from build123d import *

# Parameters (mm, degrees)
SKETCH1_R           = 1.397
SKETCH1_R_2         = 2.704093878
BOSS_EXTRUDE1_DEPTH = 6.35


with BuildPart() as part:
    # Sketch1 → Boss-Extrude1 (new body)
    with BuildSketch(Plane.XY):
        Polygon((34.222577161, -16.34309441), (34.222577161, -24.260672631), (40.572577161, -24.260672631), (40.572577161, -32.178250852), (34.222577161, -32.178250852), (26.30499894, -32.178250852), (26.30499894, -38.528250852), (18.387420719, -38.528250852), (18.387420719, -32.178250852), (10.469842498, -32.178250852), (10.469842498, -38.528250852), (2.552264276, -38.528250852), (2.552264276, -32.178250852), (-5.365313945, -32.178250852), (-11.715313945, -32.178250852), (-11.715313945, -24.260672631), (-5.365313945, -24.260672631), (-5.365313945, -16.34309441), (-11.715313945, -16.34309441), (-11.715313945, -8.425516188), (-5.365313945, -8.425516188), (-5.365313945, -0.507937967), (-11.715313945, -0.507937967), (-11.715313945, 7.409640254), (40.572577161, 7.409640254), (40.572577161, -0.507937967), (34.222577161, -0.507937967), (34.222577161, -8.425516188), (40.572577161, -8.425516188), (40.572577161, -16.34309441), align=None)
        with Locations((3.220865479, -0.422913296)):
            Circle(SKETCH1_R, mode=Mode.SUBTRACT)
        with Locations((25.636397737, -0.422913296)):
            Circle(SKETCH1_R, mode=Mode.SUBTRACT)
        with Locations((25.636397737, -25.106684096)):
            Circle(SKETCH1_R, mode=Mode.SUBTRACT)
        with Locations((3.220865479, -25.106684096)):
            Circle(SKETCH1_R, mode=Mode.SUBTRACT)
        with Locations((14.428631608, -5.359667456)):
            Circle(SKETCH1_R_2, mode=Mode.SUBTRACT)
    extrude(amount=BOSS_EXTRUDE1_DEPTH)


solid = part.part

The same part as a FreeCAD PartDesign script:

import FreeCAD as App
import Part
import Sketcher

V = App.Vector
Q = App.Units.Quantity


def add_polygon(sketch, points):
    """Adds a closed chain of lines whose ends are joined by coincident constraints."""
    first, n = sketch.GeometryCount, len(points)
    for a, b in zip(points, points[1:] + points[:1]):
        sketch.addGeometry(Part.LineSegment(App.Vector(*a, 0), App.Vector(*b, 0)), False)
    for i in range(n):
        sketch.addConstraint(Sketcher.Constraint("Coincident", first + i, 2, first + (i + 1) % n, 1))

doc = App.newDocument("Part")
body = doc.addObject("PartDesign::Body", "Body")

# Sketch on XY plane
sketch1 = doc.addObject("Sketcher::SketchObject", "Sketch")
body.addObject(sketch1)
sketch1.AttachmentSupport = (doc.XY_Plane, [""])
sketch1.MapMode = "FlatFace"
add_polygon(sketch1, [(34.2, -24.3), (34.2, -16.3), (40.6, -16.3), (40.6, -8.4), (34.2, -8.4), (34.2, -0.5), (40.6, -0.5), (40.6, 7.4), (-11.7, 7.4), (-11.7, -0.5), (-5.4, -0.5), (-5.4, -8.4), (-11.7, -8.4), (-11.7, -16.3), (-5.4, -16.3), (-5.4, -24.3), (-11.7, -24.3), (-11.7, -32.2), (2.6, -32.2), (2.6, -38.5), (10.5, -38.5), (10.5, -32.2), (18.4, -32.2), (18.4, -38.5), (26.3, -38.5), (26.3, -32.2), (40.6, -32.2), (40.6, -24.3)])  # lines 0-27
sketch1.addGeometry(Part.Circle(V(25.6, -25.1, 0), V(0, 0, 1), 1.4), False)  # 28
sketch1.addGeometry(Part.Circle(V(3.2, -25.1, 0), V(0, 0, 1), 1.4), False)  # 29
sketch1.addGeometry(Part.Circle(V(25.6, -0.4, 0), V(0, 0, 1), 1.4), False)  # 30
sketch1.addGeometry(Part.Circle(V(14.4, -5.4, 0), V(0, 0, 1), 2.7), False)  # 31
sketch1.addGeometry(Part.Circle(V(3.2, -0.4, 0), V(0, 0, 1), 1.4), False)  # 32
sketch1.addConstraint(Sketcher.Constraint("Vertical", 0))
sketch1.addConstraint(Sketcher.Constraint("Horizontal", 1))
sketch1.addConstraint(Sketcher.Constraint("Vertical", 2))
sketch1.addConstraint(Sketcher.Constraint("Horizontal", 3))
sketch1.addConstraint(Sketcher.Constraint("Vertical", 4))
sketch1.addConstraint(Sketcher.Constraint("Horizontal", 5))
sketch1.addConstraint(Sketcher.Constraint("Vertical", 6))
sketch1.addConstraint(Sketcher.Constraint("Horizontal", 7))
sketch1.addConstraint(Sketcher.Constraint("Vertical", 8))
sketch1.addConstraint(Sketcher.Constraint("Horizontal", 9))
sketch1.addConstraint(Sketcher.Constraint("Vertical", 10))
sketch1.addConstraint(Sketcher.Constraint("Horizontal", 11))
sketch1.addConstraint(Sketcher.Constraint("Vertical", 12))
sketch1.addConstraint(Sketcher.Constraint("Horizontal", 13))
sketch1.addConstraint(Sketcher.Constraint("Vertical", 14))
sketch1.addConstraint(Sketcher.Constraint("Horizontal", 15))
sketch1.addConstraint(Sketcher.Constraint("Vertical", 16))
sketch1.addConstraint(Sketcher.Constraint("Horizontal", 17))
sketch1.addConstraint(Sketcher.Constraint("Vertical", 18))
sketch1.addConstraint(Sketcher.Constraint("Horizontal", 19))
sketch1.addConstraint(Sketcher.Constraint("Vertical", 20))
sketch1.addConstraint(Sketcher.Constraint("Horizontal", 21))
sketch1.addConstraint(Sketcher.Constraint("Vertical", 22))
sketch1.addConstraint(Sketcher.Constraint("Horizontal", 23))
sketch1.addConstraint(Sketcher.Constraint("Vertical", 24))
sketch1.addConstraint(Sketcher.Constraint("Horizontal", 25))
sketch1.addConstraint(Sketcher.Constraint("Vertical", 26))
sketch1.addConstraint(Sketcher.Constraint("Horizontal", 27))
sketch1.addConstraint(Sketcher.Constraint("Equal", 28, 29))
sketch1.addConstraint(Sketcher.Constraint("Equal", 29, 30))
sketch1.addConstraint(Sketcher.Constraint("Equal", 30, 32))
sketch1.addConstraint(Sketcher.Constraint("Horizontal", 28, 3, 29, 3))
sketch1.addConstraint(Sketcher.Constraint("Horizontal", 30, 3, 32, 3))
sketch1.addConstraint(Sketcher.Constraint("Horizontal", 5, 2, 8, 2))
sketch1.addConstraint(Sketcher.Constraint("Horizontal", 3, 2, 10, 2))
sketch1.addConstraint(Sketcher.Constraint("Horizontal", 1, 2, 12, 2))
sketch1.addConstraint(Sketcher.Constraint("Horizontal", 17, 2, 20, 2))
sketch1.addConstraint(Sketcher.Constraint("Horizontal", 19, 2, 22, 2))
sketch1.addConstraint(Sketcher.Constraint("Horizontal", 21, 2, 24, 2))
sketch1.addConstraint(Sketcher.Constraint("Horizontal", 15, 2, 26, 2))
sketch1.addConstraint(Sketcher.Constraint("Vertical", 28, 3, 30, 3))
sketch1.addConstraint(Sketcher.Constraint("Vertical", 29, 3, 32, 3))
sketch1.addConstraint(Sketcher.Constraint("Vertical", 0, 2, 3, 2))
sketch1.addConstraint(Sketcher.Constraint("Vertical", 2, 2, 5, 2))
sketch1.addConstraint(Sketcher.Constraint("Vertical", 8, 2, 11, 2))
sketch1.addConstraint(Sketcher.Constraint("Vertical", 10, 2, 13, 2))
sketch1.addConstraint(Sketcher.Constraint("Vertical", 12, 2, 15, 2))
sketch1.addConstraint(Sketcher.Constraint("Vertical", 6, 2, 25, 2))
sketch1.addConstraint(Sketcher.Constraint("Equal", 5, 9))
sketch1.addConstraint(Sketcher.Constraint("Equal", 19, 21))
sketch1.addConstraint(Sketcher.Constraint("Equal", 21, 23))
sketch1.addConstraint(Sketcher.Constraint("Equal", 17, 25))
sketch1.addConstraint(Sketcher.Constraint("Equal", 23, 0))
sketch1.addConstraint(Sketcher.Constraint("Equal", 0, 2))
sketch1.addConstraint(Sketcher.Constraint("Equal", 2, 4))
sketch1.addConstraint(Sketcher.Constraint("Equal", 4, 6))
sketch1.addConstraint(Sketcher.Constraint("Equal", 14, 16))
sketch1.addConstraint(Sketcher.Constraint("Equal", 27, 18))
sketch1.addConstraint(Sketcher.Constraint("Diameter", 28, Q("0.11 in")))
sketch1.addConstraint(Sketcher.Constraint("DistanceX", 1, 1, 1, 2, Q("0.25 in")))
sketch1.addConstraint(Sketcher.Constraint("Diameter", 31, Q("5.408188 mm")))
sketch1.addConstraint(Sketcher.Constraint("DistanceX", 7, 2, 7, 1, Q("52.287891 mm")))
sketch1.addConstraint(Sketcher.Constraint("DistanceX", 17, 1, 17, 2, Q("14.267578 mm")))
sketch1.addConstraint(Sketcher.Constraint("DistanceX", -1, 1, 23, 2, Q("26.304999 mm")))
sketch1.addConstraint(Sketcher.Constraint("DistanceX", 17, 2, 29, 3, Q("0.668601 mm")))
sketch1.addConstraint(Sketcher.Constraint("DistanceX", 28, 3, 23, 2, Q("0.668601 mm")))
sketch1.addConstraint(Sketcher.Constraint("DistanceX", -1, 1, 31, 3, Q("14.428632 mm")))
sketch1.addConstraint(Sketcher.Constraint("DistanceY", -1, 1, 6, 2, Q("7.40964 mm")))
sketch1.addConstraint(Sketcher.Constraint("DistanceY", 28, 3, 30, 3, Q("24.683771 mm")))
sketch1.addConstraint(Sketcher.Constraint("DistanceY", 28, 3, 0, 2, Q("8.76359 mm")))
sketch1.addConstraint(Sketcher.Constraint("DistanceY", 2, 2, 31, 3, Q("3.065849 mm")))
pad1 = doc.addObject("PartDesign::Pad", "Pad")
body.addObject(pad1)
pad1.Profile = sketch1
pad1.Length = Q("0.25 in")

doc.recompute()
